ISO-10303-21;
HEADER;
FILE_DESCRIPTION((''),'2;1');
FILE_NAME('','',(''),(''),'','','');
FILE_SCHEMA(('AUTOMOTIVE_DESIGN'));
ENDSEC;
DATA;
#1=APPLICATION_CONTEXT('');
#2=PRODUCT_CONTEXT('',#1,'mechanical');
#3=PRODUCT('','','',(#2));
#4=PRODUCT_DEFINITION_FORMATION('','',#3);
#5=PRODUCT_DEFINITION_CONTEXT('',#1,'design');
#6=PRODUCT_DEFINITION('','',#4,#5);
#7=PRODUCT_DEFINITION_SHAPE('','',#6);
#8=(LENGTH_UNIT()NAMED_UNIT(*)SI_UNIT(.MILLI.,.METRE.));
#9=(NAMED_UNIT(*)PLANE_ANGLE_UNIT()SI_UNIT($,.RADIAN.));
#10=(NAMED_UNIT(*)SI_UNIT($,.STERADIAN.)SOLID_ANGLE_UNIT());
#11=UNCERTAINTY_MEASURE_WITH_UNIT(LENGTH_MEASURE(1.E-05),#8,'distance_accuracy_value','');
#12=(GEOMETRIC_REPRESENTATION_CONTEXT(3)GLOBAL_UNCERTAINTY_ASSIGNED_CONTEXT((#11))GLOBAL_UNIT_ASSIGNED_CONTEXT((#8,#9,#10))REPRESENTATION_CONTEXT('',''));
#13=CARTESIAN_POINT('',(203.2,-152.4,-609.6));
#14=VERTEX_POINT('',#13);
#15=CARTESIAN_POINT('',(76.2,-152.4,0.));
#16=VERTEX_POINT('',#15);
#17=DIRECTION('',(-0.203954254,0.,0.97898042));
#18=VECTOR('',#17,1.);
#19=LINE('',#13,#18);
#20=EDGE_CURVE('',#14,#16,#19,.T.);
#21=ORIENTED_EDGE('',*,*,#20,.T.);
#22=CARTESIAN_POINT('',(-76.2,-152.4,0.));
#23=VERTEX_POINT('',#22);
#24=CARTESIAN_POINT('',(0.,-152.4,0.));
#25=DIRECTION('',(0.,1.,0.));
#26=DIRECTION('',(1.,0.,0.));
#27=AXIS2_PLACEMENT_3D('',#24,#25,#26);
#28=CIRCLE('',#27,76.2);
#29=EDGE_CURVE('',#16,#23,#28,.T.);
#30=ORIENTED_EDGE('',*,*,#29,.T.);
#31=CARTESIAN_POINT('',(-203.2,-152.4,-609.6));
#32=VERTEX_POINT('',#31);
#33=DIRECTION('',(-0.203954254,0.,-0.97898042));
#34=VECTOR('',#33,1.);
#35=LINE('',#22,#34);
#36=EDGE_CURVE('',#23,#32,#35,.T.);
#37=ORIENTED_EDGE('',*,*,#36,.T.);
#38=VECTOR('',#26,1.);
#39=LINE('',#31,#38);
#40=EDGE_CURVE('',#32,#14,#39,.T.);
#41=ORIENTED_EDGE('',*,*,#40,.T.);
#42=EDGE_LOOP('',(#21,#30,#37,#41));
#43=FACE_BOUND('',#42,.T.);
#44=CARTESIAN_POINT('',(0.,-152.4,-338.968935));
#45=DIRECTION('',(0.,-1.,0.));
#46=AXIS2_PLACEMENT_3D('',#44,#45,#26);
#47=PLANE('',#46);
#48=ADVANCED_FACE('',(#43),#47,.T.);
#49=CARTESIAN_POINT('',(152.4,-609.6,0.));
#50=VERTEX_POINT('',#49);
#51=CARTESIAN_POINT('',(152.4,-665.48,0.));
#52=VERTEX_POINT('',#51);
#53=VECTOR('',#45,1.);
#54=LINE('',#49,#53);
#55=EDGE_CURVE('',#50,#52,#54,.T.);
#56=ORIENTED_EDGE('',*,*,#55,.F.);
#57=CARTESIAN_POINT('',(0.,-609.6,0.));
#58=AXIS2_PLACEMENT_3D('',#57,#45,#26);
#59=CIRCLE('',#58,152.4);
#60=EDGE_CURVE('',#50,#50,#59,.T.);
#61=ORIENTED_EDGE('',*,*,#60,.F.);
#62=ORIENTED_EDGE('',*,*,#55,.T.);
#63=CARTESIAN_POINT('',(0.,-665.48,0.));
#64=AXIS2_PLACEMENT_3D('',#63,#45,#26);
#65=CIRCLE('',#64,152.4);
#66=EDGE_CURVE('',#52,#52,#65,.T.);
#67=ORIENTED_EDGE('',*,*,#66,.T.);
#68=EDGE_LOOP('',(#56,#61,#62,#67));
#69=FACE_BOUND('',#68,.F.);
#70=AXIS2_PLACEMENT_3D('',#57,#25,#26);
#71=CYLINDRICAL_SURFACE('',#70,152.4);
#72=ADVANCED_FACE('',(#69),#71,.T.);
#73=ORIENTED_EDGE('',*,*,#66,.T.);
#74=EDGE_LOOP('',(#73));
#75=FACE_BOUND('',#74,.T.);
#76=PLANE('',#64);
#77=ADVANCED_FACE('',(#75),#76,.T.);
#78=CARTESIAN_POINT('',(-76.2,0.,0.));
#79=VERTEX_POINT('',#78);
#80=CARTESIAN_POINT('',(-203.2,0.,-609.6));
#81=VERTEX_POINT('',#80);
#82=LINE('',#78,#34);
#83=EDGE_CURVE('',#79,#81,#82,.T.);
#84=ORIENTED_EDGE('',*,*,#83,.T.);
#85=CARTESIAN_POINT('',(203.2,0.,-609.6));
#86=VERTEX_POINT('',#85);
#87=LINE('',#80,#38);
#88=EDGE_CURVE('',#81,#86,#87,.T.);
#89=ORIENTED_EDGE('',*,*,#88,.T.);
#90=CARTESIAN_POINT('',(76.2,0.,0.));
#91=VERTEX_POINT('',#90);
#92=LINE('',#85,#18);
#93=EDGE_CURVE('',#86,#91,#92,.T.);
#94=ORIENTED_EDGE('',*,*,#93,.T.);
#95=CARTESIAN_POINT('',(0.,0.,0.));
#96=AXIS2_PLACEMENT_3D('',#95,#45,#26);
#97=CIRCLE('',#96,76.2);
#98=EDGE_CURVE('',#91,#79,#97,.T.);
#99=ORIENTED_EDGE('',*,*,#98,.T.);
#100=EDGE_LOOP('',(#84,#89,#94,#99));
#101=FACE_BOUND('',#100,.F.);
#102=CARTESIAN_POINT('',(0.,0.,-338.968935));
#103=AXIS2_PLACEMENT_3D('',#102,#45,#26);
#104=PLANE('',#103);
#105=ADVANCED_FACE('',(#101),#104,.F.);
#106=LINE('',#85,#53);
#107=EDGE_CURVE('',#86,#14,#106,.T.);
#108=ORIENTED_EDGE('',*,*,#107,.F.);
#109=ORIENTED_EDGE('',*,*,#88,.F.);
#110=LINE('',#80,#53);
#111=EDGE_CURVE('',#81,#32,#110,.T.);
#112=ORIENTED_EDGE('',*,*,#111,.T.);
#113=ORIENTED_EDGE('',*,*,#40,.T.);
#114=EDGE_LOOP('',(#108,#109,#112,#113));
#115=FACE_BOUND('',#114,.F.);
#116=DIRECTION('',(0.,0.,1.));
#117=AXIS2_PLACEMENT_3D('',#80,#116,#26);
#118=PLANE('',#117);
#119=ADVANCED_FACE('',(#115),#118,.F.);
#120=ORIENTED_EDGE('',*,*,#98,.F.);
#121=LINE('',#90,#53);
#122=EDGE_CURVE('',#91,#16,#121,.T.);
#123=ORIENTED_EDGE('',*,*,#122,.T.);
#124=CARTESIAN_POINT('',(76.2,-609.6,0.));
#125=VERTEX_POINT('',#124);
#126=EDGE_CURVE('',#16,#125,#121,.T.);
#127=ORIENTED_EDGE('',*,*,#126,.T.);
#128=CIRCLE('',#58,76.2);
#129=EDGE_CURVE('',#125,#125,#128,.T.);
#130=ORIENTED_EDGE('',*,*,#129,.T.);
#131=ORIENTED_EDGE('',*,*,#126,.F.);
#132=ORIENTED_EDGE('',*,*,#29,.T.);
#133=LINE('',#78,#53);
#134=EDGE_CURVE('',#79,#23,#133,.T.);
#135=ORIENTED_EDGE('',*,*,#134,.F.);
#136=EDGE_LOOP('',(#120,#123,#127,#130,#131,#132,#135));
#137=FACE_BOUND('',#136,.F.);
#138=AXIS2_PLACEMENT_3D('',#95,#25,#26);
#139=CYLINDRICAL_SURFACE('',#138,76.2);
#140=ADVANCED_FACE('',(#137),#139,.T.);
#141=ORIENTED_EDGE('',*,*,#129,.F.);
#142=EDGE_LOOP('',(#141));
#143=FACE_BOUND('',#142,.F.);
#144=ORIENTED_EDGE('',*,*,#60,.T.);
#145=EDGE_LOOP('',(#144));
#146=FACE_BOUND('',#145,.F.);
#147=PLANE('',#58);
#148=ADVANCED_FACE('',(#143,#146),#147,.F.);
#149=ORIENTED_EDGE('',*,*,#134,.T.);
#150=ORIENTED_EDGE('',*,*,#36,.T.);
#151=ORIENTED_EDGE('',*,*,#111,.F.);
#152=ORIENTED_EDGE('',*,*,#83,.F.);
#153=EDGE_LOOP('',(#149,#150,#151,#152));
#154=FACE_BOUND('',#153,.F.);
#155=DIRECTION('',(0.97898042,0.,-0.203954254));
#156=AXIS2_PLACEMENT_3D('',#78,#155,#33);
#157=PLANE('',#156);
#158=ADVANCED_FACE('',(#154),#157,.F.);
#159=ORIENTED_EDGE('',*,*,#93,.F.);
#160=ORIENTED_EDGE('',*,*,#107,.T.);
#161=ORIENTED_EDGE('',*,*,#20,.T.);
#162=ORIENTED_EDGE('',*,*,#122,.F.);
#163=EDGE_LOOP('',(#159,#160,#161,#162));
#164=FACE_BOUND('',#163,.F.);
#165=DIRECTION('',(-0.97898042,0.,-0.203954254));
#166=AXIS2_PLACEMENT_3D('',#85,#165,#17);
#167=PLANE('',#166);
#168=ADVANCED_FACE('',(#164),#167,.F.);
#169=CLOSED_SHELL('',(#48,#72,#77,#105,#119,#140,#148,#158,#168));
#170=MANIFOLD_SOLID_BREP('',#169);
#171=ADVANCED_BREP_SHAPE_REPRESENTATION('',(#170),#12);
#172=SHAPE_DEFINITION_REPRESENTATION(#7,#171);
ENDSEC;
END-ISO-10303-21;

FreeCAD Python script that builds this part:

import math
import FreeCAD as App
import Part
import Sketcher

V = App.Vector
Q = App.Units.Quantity

doc = App.newDocument("Part")
body = doc.addObject("PartDesign::Body", "Body")

sketch1 = doc.addObject("Sketcher::SketchObject", "Sketch")
body.addObject(sketch1)
sketch1.AttachmentSupport = (doc.XZ_Plane, [""])
sketch1.MapMode = "FlatFace"
sketch1.addGeometry(Part.Circle(V(0, 0, 0), V(0, 0, 1), 76.2), False)
sketch1.addConstraint([
    Sketcher.Constraint("Coincident", 0, 3, -1, 1),
    Sketcher.Constraint("Diameter", 0, Q("6 in")),
])
pad1 = doc.addObject("PartDesign::Pad", "Pad")
body.addObject(pad1)
pad1.Profile = sketch1
pad1.Length = Q("24 in")

sketch2 = doc.addObject("Sketcher::SketchObject", "Sketch001")
body.addObject(sketch2)
sketch2.AttachmentSupport = (doc.XZ_Plane, [""])
sketch2.MapMode = "FlatFace"
sketch2.addGeometry([
    Part.LineSegment(V(203.2, -609.6, 0), V(76.2, 0, 0)),
    Part.ArcOfCircle(Part.Circle(V(0, 0, 0), V(0, 0, 1), 76.2), math.radians(180), math.radians(360)),
    Part.LineSegment(V(-76.2, 0, 0), V(-203.2, -609.6, 0)),
    Part.LineSegment(V(-203.2, -609.6, 0), V(203.2, -609.6, 0)),
], False)
sketch2.addConstraint([
    Sketcher.Constraint("Coincident", 0, 2, 1, 2),
    Sketcher.Constraint("Coincident", 1, 1, 2, 1),
    Sketcher.Constraint("Coincident", 2, 2, 3, 1),
    Sketcher.Constraint("Coincident", 3, 2, 0, 1),
    Sketcher.Constraint("Horizontal", 3),
    Sketcher.Constraint("Coincident", 1, 3, -1, 1),
    Sketcher.Constraint("PointOnObject", 0, 2, -1),
    Sketcher.Constraint("PointOnObject", 1, 1, -1),
    Sketcher.Constraint("Equal", 0, 2),
    Sketcher.Constraint("Radius", 1, Q("3 in")),
    Sketcher.Constraint("DistanceX", 3, 1, 3, 2, Q("16 in")),
    Sketcher.Constraint("DistanceY", 2, 2, -1, 1, Q("24 in")),
])
pad2 = doc.addObject("PartDesign::Pad", "Pad001")
body.addObject(pad2)
pad2.Profile = sketch2
pad2.Length = Q("6 in")

sketch3 = doc.addObject("Sketcher::SketchObject", "Sketch002")
body.addObject(sketch3)
sketch3.AttachmentSupport = (doc.XZ_Plane, [""])
sketch3.MapMode = "FlatFace"
sketch3.AttachmentOffset = App.Placement(V(0, 0, 24 * 25.4), App.Rotation())
sketch3.addGeometry(Part.Circle(V(0, 0, 0), V(0, 0, 1), 152.4), False)
sketch3.addConstraint([
    Sketcher.Constraint("Coincident", 0, 3, -1, 1),
    Sketcher.Constraint("Diameter", 0, Q("12 in")),
])
pad3 = doc.addObject("PartDesign::Pad", "Pad002")
body.addObject(pad3)
pad3.Profile = sketch3
pad3.Length = Q("2.2 in")

doc.recompute()
